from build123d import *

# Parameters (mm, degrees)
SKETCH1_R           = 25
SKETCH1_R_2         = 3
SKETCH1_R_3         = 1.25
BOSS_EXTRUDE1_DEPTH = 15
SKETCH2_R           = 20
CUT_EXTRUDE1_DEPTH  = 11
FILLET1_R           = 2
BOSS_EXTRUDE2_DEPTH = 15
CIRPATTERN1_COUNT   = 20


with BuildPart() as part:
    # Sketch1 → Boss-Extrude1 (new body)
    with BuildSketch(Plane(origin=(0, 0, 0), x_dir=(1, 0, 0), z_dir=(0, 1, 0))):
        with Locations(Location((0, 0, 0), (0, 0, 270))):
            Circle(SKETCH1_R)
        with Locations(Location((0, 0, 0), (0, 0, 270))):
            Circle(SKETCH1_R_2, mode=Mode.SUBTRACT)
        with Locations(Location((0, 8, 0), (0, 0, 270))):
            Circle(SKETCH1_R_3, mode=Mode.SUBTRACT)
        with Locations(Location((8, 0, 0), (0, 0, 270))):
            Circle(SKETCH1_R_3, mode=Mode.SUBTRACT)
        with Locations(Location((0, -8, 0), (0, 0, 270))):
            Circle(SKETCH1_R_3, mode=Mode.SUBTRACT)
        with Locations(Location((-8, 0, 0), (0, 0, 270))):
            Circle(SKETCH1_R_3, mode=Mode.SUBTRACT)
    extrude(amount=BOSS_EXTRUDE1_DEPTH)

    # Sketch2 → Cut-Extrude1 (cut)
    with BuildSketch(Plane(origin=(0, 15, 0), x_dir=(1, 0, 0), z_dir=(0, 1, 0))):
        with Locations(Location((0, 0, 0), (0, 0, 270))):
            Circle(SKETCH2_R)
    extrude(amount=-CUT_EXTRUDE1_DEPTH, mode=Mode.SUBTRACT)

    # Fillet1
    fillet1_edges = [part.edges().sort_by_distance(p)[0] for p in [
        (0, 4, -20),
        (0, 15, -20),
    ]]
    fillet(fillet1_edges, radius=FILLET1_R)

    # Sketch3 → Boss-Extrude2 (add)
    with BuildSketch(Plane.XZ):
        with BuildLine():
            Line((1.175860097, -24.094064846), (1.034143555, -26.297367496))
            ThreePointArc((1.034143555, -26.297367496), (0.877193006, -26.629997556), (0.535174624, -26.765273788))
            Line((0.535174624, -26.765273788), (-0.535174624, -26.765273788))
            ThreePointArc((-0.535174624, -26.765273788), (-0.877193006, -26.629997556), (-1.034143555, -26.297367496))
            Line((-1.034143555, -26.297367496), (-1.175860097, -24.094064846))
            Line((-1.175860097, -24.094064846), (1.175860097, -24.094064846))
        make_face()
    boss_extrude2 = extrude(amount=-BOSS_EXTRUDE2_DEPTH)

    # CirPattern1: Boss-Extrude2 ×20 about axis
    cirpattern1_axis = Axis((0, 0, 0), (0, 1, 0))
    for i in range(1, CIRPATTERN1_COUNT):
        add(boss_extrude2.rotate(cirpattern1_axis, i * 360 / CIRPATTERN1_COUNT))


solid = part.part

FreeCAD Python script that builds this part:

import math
import FreeCAD as App
import Part
import Sketcher

V = App.Vector


def edges_at(feature, points):
    """Names of the edges that pass closest to the given points."""
    edges = feature.Shape.Edges
    near = lambda p: min(range(len(edges)), key=lambda i: edges[i].distToShape(Part.Vertex(*p))[0])
    return sorted({f"Edge{near(p) + 1}" for p in points})

doc = App.newDocument("Part")
body = doc.addObject("PartDesign::Body", "Body")

sketch1 = doc.addObject("Sketcher::SketchObject", "Sketch")
body.addObject(sketch1)
sketch1.AttachmentSupport = (doc.XZ_Plane, [""])
sketch1.MapMode = "FlatFace"
sketch1.addGeometry(Part.Circle(V(0, 0, 0), V(0, 0, 1), 25), False)
sketch1.addGeometry(Part.Circle(V(0, -8, 0), V(0, 0, 1), 1.2), False)
sketch1.addGeometry(Part.Circle(V(-8, 0, 0), V(0, 0, 1), 1.2), False)
sketch1.addGeometry(Part.Circle(V(0, 0, 0), V(0, 0, 1), 3), False)
sketch1.addGeometry(Part.Circle(V(0, 8, 0), V(0, 0, 1), 1.2), False)
sketch1.addGeometry(Part.Circle(V(8, 0, 0), V(0, 0, 1), 1.2), False)
sketch1.addConstraint(Sketcher.Constraint("Coincident", 0, 3, -1, 1))
sketch1.addConstraint(Sketcher.Constraint("Coincident", 3, 3, -1, 1))
sketch1.addConstraint(Sketcher.Constraint("Equal", 1, 2))
sketch1.addConstraint(Sketcher.Constraint("Equal", 2, 4))
sketch1.addConstraint(Sketcher.Constraint("Equal", 4, 5))
sketch1.addConstraint(Sketcher.Constraint("Symmetric", 1, 3, 4, 3, -1, 1))
sketch1.addConstraint(Sketcher.Constraint("Symmetric", 2, 3, 5, 3, -1, 1))
sketch1.addConstraint(Sketcher.Constraint("PointOnObject", 1, 3, -2))
sketch1.addConstraint(Sketcher.Constraint("PointOnObject", 2, 3, -1))
sketch1.addConstraint(Sketcher.Constraint("Diameter", 0, 50.0))
sketch1.addConstraint(Sketcher.Constraint("Diameter", 3, 6.0))
sketch1.addConstraint(Sketcher.Constraint("Diameter", 1, 2.5))
sketch1.addConstraint(Sketcher.Constraint("DistanceY", 1, 3, -1, 1, 8.0))
sketch1.addConstraint(Sketcher.Constraint("DistanceX", 2, 3, -1, 1, 8.0))
pad1 = doc.addObject("PartDesign::Pad", "Pad")
body.addObject(pad1)
pad1.Profile = sketch1
pad1.Length = 15
pad1.Reversed = True

sketch2 = doc.addObject("Sketcher::SketchObject", "Sketch001")
body.addObject(sketch2)
sketch2.AttachmentSupport = (doc.XZ_Plane, [""])
sketch2.MapMode = "FlatFace"
sketch2.AttachmentOffset = App.Placement(V(0, 0, -15), App.Rotation())
sketch2.addGeometry(Part.Circle(V(0, 0, 0), V(0, 0, 1), 20), False)
sketch2.addConstraint(Sketcher.Constraint("Coincident", 0, 3, -1, 1))
sketch2.addConstraint(Sketcher.Constraint("Diameter", 0, 40.0))
pocket1 = doc.addObject("PartDesign::Pocket", "Pocket")
body.addObject(pocket1)
pocket1.Profile = sketch2
pocket1.Length = 11
pocket1.Reversed = True
doc.recompute()

fillet = doc.addObject("PartDesign::Fillet", "Fillet")
body.addObject(fillet)
fillet.Base = (pocket1, edges_at(pocket1, [(0, 4, -20), (0, 15, -20)]))
fillet.Radius = 2

sketch3 = doc.addObject("Sketcher::SketchObject", "Sketch002")
body.addObject(sketch3)
sketch3.AttachmentSupport = (doc.XZ_Plane, [""])
sketch3.MapMode = "FlatFace"
sketch3.addGeometry(Part.LineSegment(V(1.03, -26.3, 0), V(1.18, -24.09, 0)), False)
sketch3.addGeometry(Part.LineSegment(V(1.18, -24.09, 0), V(-1.18, -24.09, 0)), False)
sketch3.addGeometry(Part.LineSegment(V(-1.18, -24.09, 0), V(-1.03, -26.3, 0)), False)
sketch3.addGeometry(Part.ArcOfCircle(Part.Circle(V(-0.54, -26.27, 0), V(0, 0, 1), 0.5), math.radians(-176), math.radians(-90)), False)
sketch3.addGeometry(Part.LineSegment(V(-0.54, -26.77, 0), V(0.54, -26.77, 0)), False)
sketch3.addGeometry(Part.ArcOfCircle(Part.Circle(V(0.54, -26.27, 0), V(0, 0, 1), 0.5), math.radians(-90), math.radians(-4)), False)
sketch3.addConstraint(Sketcher.Constraint("Coincident", 0, 2, 1, 1))
sketch3.addConstraint(Sketcher.Constraint("Coincident", 1, 2, 2, 1))
sketch3.addConstraint(Sketcher.Constraint("Tangent", 2, 2, 3, 1))
sketch3.addConstraint(Sketcher.Constraint("Tangent", 3, 2, 4, 1))
sketch3.addConstraint(Sketcher.Constraint("Tangent", 4, 2, 5, 1))
sketch3.addConstraint(Sketcher.Constraint("Tangent", 5, 2, 0, 1))
sketch3.addConstraint(Sketcher.Constraint("Horizontal", 1))
sketch3.addConstraint(Sketcher.Constraint("Horizontal", 4))
sketch3.addConstraint(Sketcher.Constraint("Equal", 3, 5))
sketch3.addConstraint(Sketcher.Constraint("Symmetric", 2, 2, 5, 2, -2))
sketch3.addConstraint(Sketcher.Constraint("Radius", 3, 0.5))
sketch3.addConstraint(Sketcher.Constraint("DistanceX", 1, 2, 1, 1, 2.35172))
sketch3.addConstraint(Sketcher.Constraint("DistanceX", 4, 1, 4, 2, 1.070349))
sketch3.addConstraint(Sketcher.Constraint("DistanceY", 5, 3, 0, 2, 2.171209))
sketch3.addConstraint(Sketcher.Constraint("DistanceY", 3, 3, -1, 1, 26.265274))
pad2 = doc.addObject("PartDesign::Pad", "Pad001")
body.addObject(pad2)
pad2.Profile = sketch3
pad2.Length = 15
pad2.Reversed = True
doc.recompute()

polarpattern = doc.addObject("PartDesign::PolarPattern", "PolarPattern")
body.addObject(polarpattern)
polarpattern.Originals = [pad2]
polarpattern.Axis = (doc.Y_Axis, [""])
polarpattern.Angle = 360
polarpattern.Occurrences = 20
body.Tip = polarpattern

doc.recompute()
